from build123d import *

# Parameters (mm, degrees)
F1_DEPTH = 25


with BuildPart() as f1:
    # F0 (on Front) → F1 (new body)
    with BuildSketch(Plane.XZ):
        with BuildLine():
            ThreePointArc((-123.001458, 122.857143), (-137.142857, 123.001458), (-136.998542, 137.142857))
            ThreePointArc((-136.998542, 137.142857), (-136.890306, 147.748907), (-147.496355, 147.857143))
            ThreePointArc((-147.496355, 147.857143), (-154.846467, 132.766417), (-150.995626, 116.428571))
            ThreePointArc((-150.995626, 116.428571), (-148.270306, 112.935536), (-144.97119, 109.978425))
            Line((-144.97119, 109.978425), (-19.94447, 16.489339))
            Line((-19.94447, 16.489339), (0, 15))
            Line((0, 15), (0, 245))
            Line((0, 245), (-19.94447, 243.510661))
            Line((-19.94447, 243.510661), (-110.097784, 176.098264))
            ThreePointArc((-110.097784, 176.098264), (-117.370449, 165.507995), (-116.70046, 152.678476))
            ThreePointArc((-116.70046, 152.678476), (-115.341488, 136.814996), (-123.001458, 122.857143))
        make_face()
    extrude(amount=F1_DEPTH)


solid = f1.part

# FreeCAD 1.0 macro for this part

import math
import FreeCAD as App
import Part
import Sketcher
from FreeCAD import Vector

doc = App.newDocument("Part")
body = doc.addObject("PartDesign::Body", "Body")

sketch1 = body.newObject("Sketcher::SketchObject", "Sketch")
sketch1.AttachmentSupport = (doc.getObject("XZ_Plane"), [""])
sketch1.MapMode = "FlatFace"
sketch1.addGeometry(Part.ArcOfCircle(Part.Circle(Vector(-130, 130, 0), Vector(0, 0, 1), 10), math.radians(134), math.radians(314)), False)
sketch1.addGeometry(Part.ArcOfCircle(Part.Circle(Vector(-142, 142, 0), Vector(0, 0, 1), 8), math.radians(-46), math.radians(134)), False)
sketch1.addGeometry(Part.ArcOfCircle(Part.Circle(Vector(-130, 130, 0), Vector(0, 0, 1), 25), math.radians(134), math.radians(213)), False)
sketch1.addGeometry(Part.ArcOfCircle(Part.Circle(Vector(-130, 130, 0), Vector(0, 0, 1), 25), math.radians(-147), math.radians(-127)), False)
sketch1.addGeometry(Part.LineSegment(Vector(-145, 110, 0), Vector(-20, 16, 0)), False)
sketch1.addGeometry(Part.LineSegment(Vector(-20, 16, 0), Vector(0, 15, 0)), False)
sketch1.addGeometry(Part.LineSegment(Vector(0, 15, 0), Vector(0, 245, 0)), False)
sketch1.addGeometry(Part.LineSegment(Vector(0, 245, 0), Vector(-20, 244, 0)), False)
sketch1.addGeometry(Part.LineSegment(Vector(-20, 244, 0), Vector(-110, 176, 0)), False)
sketch1.addGeometry(Part.ArcOfCircle(Part.Circle(Vector(-98, 160, 0), Vector(0, 0, 1), 20), math.radians(127), math.radians(202)), False)
sketch1.addGeometry(Part.ArcOfCircle(Part.Circle(Vector(-142, 143, 0), Vector(0, 0, 1), 28), math.radians(-46), math.radians(22)), False)
sketch1.addConstraint(Sketcher.Constraint("Tangent", 0, 1, 1, 1))
sketch1.addConstraint(Sketcher.Constraint("Tangent", 1, 2, 2, 1))
sketch1.addConstraint(Sketcher.Constraint("Tangent", 2, 2, 3, 1))
sketch1.addConstraint(Sketcher.Constraint("Tangent", 3, 2, 4, 1))
sketch1.addConstraint(Sketcher.Constraint("Coincident", 4, 2, 5, 1))
sketch1.addConstraint(Sketcher.Constraint("Coincident", 5, 2, 6, 1))
sketch1.addConstraint(Sketcher.Constraint("Coincident", 6, 2, 7, 1))
sketch1.addConstraint(Sketcher.Constraint("Coincident", 7, 2, 8, 1))
sketch1.addConstraint(Sketcher.Constraint("Tangent", 8, 2, 9, 1))
sketch1.addConstraint(Sketcher.Constraint("Tangent", 9, 2, 10, 2))
sketch1.addConstraint(Sketcher.Constraint("Tangent", 10, 1, 0, 2))
sketch1.addConstraint(Sketcher.Constraint("Vertical", 6))
sketch1.addConstraint(Sketcher.Constraint("Coincident", 2, 3, 0, 3))
sketch1.addConstraint(Sketcher.Constraint("Coincident", 10, 3, 1, 3))
sketch1.addConstraint(Sketcher.Constraint("PointOnObject", 5, 2, -2))
sketch1.addConstraint(Sketcher.Constraint("Vertical", 4, 2, 7, 2))
sketch1.addConstraint(Sketcher.Constraint("Equal", 5, 7))
sketch1.addConstraint(Sketcher.Constraint("Radius", 0, 10.0))
sketch1.addConstraint(Sketcher.Constraint("Radius", 2, 25.000001))
sketch1.addConstraint(Sketcher.Constraint("Radius", 9, 20.000001))
sketch1.addConstraint(Sketcher.Constraint("DistanceY", 6, 1, 6, 2, 230.0))
sketch1.addConstraint(Sketcher.Constraint("Distance", 5, 20.0))
sketch1.addConstraint(Sketcher.Constraint("DistanceX", 0, 3, -1, 1, 130.0))
sketch1.addConstraint(Sketcher.Constraint("DistanceY", -1, 1, 0, 3, 130.0))
sketch1.addConstraint(Sketcher.Constraint("DistanceY", -1, 1, 5, 2, 15.0))
sketch1.addConstraint(Sketcher.Constraint("DistanceY", -1, 1, 1, 3, 142.5))
sketch1.addConstraint(Sketcher.Constraint("Radius", 3, 24.999979))
sketch1.addConstraint(Sketcher.Constraint("Distance", 4, 156.114989))
sketch1.addConstraint(Sketcher.Constraint("DistanceX", 9, 3, -1, 1, 98.120831))
sketch1.addConstraint(Sketcher.Constraint("DistanceY", -1, 1, 2, 2, 116.428571))
pad1 = body.newObject("PartDesign::Pad", "Pad")
pad1.Profile = sketch1
pad1.Length = 25

doc.recompute()
